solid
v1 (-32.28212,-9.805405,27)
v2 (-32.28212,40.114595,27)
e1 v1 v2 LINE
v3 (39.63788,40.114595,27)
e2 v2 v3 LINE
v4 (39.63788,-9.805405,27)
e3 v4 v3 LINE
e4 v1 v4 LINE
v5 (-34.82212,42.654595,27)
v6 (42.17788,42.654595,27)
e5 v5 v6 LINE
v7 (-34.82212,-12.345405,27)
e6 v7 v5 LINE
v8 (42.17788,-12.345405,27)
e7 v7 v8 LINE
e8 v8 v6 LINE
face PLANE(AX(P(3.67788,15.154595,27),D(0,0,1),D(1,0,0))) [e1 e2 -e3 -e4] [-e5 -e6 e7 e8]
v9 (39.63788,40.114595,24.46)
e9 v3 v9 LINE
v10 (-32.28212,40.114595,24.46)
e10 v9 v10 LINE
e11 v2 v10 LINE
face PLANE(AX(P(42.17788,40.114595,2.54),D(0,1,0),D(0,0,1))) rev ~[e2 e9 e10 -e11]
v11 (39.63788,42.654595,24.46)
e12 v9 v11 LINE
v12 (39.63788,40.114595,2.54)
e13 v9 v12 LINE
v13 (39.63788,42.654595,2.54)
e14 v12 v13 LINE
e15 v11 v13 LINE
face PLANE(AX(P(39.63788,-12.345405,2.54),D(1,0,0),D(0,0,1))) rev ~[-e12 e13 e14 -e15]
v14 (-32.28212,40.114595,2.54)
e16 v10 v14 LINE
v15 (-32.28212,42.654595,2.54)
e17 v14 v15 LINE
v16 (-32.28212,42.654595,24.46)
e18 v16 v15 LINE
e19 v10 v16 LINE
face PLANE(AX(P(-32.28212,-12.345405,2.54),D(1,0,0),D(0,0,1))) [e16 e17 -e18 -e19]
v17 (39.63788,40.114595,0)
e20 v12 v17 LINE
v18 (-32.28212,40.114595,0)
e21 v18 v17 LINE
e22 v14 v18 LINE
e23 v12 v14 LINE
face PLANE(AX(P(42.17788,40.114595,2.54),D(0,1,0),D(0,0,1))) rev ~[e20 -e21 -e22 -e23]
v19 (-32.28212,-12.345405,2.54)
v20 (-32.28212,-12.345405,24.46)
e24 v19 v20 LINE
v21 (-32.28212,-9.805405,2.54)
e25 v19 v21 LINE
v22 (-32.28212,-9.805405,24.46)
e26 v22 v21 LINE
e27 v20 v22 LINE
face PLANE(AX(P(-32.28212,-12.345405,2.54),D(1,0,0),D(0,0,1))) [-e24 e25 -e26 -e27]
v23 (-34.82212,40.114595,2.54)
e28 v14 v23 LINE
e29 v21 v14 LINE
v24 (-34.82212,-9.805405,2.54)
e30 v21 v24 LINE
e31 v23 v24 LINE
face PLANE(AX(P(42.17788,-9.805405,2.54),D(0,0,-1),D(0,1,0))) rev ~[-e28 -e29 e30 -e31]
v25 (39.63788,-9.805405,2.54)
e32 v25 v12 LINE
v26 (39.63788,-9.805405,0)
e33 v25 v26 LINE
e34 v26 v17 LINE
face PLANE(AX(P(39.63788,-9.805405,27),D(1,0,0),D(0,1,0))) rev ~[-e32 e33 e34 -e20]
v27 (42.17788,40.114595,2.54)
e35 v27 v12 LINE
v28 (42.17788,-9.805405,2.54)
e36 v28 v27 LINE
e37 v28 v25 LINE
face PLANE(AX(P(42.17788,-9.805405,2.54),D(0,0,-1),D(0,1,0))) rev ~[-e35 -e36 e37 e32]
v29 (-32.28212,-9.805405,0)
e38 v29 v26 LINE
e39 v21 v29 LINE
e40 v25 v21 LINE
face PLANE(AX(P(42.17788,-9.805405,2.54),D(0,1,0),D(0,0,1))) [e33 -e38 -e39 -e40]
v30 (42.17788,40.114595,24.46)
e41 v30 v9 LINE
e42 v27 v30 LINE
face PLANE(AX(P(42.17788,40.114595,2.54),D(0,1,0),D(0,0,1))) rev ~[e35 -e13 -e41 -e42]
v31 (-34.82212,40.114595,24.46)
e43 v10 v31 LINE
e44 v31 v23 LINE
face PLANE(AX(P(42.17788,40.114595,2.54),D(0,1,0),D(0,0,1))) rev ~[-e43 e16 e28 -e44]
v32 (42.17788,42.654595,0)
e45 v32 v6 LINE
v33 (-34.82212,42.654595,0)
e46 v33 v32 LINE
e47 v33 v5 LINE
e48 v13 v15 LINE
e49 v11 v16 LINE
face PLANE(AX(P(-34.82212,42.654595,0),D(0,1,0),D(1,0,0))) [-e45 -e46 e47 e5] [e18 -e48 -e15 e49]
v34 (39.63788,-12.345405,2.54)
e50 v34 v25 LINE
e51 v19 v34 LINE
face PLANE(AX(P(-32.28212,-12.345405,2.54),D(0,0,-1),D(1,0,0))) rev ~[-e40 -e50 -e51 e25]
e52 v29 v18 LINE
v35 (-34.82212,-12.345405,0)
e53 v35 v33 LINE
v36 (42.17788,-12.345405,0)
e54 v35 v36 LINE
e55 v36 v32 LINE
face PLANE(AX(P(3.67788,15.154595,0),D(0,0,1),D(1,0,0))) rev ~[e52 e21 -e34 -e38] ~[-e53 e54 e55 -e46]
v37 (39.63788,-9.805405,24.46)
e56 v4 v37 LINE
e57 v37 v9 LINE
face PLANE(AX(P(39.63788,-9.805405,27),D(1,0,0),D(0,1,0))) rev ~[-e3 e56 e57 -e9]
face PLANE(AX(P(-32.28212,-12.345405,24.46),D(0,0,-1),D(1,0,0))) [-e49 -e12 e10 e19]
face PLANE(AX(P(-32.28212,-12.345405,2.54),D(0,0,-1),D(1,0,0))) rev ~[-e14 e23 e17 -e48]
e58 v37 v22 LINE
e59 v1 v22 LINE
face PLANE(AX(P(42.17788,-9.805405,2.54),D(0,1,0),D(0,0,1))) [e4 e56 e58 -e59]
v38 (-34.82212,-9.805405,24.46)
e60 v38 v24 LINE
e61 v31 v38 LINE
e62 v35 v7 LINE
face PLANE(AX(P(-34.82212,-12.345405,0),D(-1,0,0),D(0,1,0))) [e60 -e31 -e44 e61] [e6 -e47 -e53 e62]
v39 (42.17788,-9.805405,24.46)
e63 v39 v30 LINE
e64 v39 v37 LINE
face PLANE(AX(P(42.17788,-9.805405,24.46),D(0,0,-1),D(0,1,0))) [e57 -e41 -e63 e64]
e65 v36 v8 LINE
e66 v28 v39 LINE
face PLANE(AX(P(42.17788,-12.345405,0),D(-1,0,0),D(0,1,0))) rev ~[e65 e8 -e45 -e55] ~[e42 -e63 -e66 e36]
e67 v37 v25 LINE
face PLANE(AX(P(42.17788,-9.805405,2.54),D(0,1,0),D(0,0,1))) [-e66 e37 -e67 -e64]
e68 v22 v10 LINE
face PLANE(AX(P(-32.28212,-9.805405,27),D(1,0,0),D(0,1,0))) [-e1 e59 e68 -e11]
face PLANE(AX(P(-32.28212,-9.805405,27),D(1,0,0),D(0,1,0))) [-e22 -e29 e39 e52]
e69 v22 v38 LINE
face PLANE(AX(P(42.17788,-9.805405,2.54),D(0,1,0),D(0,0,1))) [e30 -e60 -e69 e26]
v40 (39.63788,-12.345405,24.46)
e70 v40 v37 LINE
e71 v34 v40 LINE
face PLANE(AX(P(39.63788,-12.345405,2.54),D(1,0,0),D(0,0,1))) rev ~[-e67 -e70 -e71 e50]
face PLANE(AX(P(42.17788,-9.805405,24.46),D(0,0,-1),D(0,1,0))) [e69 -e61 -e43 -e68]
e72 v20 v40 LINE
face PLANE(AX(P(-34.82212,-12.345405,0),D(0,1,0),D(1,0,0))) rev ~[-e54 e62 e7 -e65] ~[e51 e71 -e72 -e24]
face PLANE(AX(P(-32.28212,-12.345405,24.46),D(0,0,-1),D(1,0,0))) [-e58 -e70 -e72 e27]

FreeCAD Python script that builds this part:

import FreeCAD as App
import Part
import Sketcher
from FreeCAD import Vector


def add_polygon(sketch, points):
    """Adds a closed chain of lines whose ends are joined by coincident constraints."""
    first, n = sketch.GeometryCount, len(points)
    for a, b in zip(points, points[1:] + points[:1]):
        sketch.addGeometry(Part.LineSegment(App.Vector(*a, 0), App.Vector(*b, 0)), False)
    for i in range(n):
        sketch.addConstraint(Sketcher.Constraint("Coincident", first + i, 2, first + (i + 1) % n, 1))

doc = App.newDocument("Part")
body = doc.addObject("PartDesign::Body", "Body")

sketch1 = body.newObject("Sketcher::SketchObject", "Sketch")
sketch1.AttachmentSupport = (doc.getObject("XY_Plane"), [""])
sketch1.MapMode = "FlatFace"
add_polygon(sketch1, [(-35, 43), (-35, -12), (42, -12), (42, 43)])
sketch1.addConstraint(Sketcher.Constraint("Vertical", 0))
sketch1.addConstraint(Sketcher.Constraint("Horizontal", 1))
sketch1.addConstraint(Sketcher.Constraint("Vertical", 2))
sketch1.addConstraint(Sketcher.Constraint("Horizontal", 3))
sketch1.addConstraint(Sketcher.Constraint("DistanceX", 1, 1, 1, 2, 77.0))
sketch1.addConstraint(Sketcher.Constraint("DistanceY", 0, 2, 0, 1, 55.0))
sketch1.addConstraint(Sketcher.Constraint("DistanceX", 0, 2, -1, 1, 34.82212))
sketch1.addConstraint(Sketcher.Constraint("DistanceY", 0, 2, -1, 1, 12.345405))
pad1 = body.newObject("PartDesign::Pad", "Pad")
pad1.Profile = sketch1
pad1.Length = 27

sketch2 = body.newObject("Sketcher::SketchObject", "Sketch001")
sketch2.AttachmentSupport = (doc.getObject("XY_Plane"), [""])
sketch2.MapMode = "FlatFace"
sketch2.AttachmentOffset = App.Placement(Vector(0, 0, 27), App.Rotation())
add_polygon(sketch2, [(-32, 40), (-32, -10), (40, -10), (40, 40)])
sketch2.addConstraint(Sketcher.Constraint("Vertical", 0))
sketch2.addConstraint(Sketcher.Constraint("Horizontal", 1))
sketch2.addConstraint(Sketcher.Constraint("Vertical", 2))
sketch2.addConstraint(Sketcher.Constraint("Horizontal", 3))
sketch2.addConstraint(Sketcher.Constraint("DistanceX", 1, 1, 1, 2, 71.92))
sketch2.addConstraint(Sketcher.Constraint("DistanceY", 0, 2, 0, 1, 49.92))
sketch2.addConstraint(Sketcher.Constraint("DistanceX", 0, 2, -1, 1, 32.28212))
sketch2.addConstraint(Sketcher.Constraint("DistanceY", 0, 2, -1, 1, 9.805405))
pocket1 = body.newObject("PartDesign::Pocket", "Pocket")
pocket1.Profile = sketch2
pocket1.Length = 27

sketch3 = body.newObject("Sketcher::SketchObject", "Sketch002")
sketch3.AttachmentSupport = (doc.getObject("YZ_Plane"), [""])
sketch3.MapMode = "FlatFace"
sketch3.AttachmentOffset = App.Placement(Vector(0, 0, 42.17788), App.Rotation())
add_polygon(sketch3, [(-10, 24), (-10, 3), (40, 3), (40, 24)])
sketch3.addConstraint(Sketcher.Constraint("Vertical", 0))
sketch3.addConstraint(Sketcher.Constraint("Horizontal", 1))
sketch3.addConstraint(Sketcher.Constraint("Vertical", 2))
sketch3.addConstraint(Sketcher.Constraint("Horizontal", 3))
sketch3.addConstraint(Sketcher.Constraint("DistanceX", 1, 1, 1, 2, 49.92))
sketch3.addConstraint(Sketcher.Constraint("DistanceY", 0, 2, 0, 1, 21.92))
sketch3.addConstraint(Sketcher.Constraint("DistanceY", -1, 1, 0, 2, 2.54))
sketch3.addConstraint(Sketcher.Constraint("DistanceX", 0, 2, -1, 1, 9.805405))
pocket2 = body.newObject("PartDesign::Pocket", "Pocket001")
pocket2.Profile = sketch3
pocket2.Length = 127

sketch4 = body.newObject("Sketcher::SketchObject", "Sketch003")
sketch4.AttachmentSupport = (doc.getObject("XZ_Plane"), [""])
sketch4.MapMode = "FlatFace"
sketch4.AttachmentOffset = App.Placement(Vector(0, 0, 12.345405), App.Rotation())
add_polygon(sketch4, [(-32, 24), (-32, 3), (40, 3), (40, 24)])
sketch4.addConstraint(Sketcher.Constraint("Vertical", 0))
sketch4.addConstraint(Sketcher.Constraint("Horizontal", 1))
sketch4.addConstraint(Sketcher.Constraint("Vertical", 2))
sketch4.addConstraint(Sketcher.Constraint("Horizontal", 3))
sketch4.addConstraint(Sketcher.Constraint("DistanceX", 1, 1, 1, 2, 71.92))
sketch4.addConstraint(Sketcher.Constraint("DistanceY", 0, 2, 0, 1, 21.92))
sketch4.addConstraint(Sketcher.Constraint("DistanceY", -1, 1, 0, 2, 2.54))
sketch4.addConstraint(Sketcher.Constraint("DistanceX", 0, 2, -1, 1, 32.28212))
pocket3 = body.newObject("PartDesign::Pocket", "Pocket002")
pocket3.Profile = sketch4
pocket3.Length = 70.104

doc.recompute()
